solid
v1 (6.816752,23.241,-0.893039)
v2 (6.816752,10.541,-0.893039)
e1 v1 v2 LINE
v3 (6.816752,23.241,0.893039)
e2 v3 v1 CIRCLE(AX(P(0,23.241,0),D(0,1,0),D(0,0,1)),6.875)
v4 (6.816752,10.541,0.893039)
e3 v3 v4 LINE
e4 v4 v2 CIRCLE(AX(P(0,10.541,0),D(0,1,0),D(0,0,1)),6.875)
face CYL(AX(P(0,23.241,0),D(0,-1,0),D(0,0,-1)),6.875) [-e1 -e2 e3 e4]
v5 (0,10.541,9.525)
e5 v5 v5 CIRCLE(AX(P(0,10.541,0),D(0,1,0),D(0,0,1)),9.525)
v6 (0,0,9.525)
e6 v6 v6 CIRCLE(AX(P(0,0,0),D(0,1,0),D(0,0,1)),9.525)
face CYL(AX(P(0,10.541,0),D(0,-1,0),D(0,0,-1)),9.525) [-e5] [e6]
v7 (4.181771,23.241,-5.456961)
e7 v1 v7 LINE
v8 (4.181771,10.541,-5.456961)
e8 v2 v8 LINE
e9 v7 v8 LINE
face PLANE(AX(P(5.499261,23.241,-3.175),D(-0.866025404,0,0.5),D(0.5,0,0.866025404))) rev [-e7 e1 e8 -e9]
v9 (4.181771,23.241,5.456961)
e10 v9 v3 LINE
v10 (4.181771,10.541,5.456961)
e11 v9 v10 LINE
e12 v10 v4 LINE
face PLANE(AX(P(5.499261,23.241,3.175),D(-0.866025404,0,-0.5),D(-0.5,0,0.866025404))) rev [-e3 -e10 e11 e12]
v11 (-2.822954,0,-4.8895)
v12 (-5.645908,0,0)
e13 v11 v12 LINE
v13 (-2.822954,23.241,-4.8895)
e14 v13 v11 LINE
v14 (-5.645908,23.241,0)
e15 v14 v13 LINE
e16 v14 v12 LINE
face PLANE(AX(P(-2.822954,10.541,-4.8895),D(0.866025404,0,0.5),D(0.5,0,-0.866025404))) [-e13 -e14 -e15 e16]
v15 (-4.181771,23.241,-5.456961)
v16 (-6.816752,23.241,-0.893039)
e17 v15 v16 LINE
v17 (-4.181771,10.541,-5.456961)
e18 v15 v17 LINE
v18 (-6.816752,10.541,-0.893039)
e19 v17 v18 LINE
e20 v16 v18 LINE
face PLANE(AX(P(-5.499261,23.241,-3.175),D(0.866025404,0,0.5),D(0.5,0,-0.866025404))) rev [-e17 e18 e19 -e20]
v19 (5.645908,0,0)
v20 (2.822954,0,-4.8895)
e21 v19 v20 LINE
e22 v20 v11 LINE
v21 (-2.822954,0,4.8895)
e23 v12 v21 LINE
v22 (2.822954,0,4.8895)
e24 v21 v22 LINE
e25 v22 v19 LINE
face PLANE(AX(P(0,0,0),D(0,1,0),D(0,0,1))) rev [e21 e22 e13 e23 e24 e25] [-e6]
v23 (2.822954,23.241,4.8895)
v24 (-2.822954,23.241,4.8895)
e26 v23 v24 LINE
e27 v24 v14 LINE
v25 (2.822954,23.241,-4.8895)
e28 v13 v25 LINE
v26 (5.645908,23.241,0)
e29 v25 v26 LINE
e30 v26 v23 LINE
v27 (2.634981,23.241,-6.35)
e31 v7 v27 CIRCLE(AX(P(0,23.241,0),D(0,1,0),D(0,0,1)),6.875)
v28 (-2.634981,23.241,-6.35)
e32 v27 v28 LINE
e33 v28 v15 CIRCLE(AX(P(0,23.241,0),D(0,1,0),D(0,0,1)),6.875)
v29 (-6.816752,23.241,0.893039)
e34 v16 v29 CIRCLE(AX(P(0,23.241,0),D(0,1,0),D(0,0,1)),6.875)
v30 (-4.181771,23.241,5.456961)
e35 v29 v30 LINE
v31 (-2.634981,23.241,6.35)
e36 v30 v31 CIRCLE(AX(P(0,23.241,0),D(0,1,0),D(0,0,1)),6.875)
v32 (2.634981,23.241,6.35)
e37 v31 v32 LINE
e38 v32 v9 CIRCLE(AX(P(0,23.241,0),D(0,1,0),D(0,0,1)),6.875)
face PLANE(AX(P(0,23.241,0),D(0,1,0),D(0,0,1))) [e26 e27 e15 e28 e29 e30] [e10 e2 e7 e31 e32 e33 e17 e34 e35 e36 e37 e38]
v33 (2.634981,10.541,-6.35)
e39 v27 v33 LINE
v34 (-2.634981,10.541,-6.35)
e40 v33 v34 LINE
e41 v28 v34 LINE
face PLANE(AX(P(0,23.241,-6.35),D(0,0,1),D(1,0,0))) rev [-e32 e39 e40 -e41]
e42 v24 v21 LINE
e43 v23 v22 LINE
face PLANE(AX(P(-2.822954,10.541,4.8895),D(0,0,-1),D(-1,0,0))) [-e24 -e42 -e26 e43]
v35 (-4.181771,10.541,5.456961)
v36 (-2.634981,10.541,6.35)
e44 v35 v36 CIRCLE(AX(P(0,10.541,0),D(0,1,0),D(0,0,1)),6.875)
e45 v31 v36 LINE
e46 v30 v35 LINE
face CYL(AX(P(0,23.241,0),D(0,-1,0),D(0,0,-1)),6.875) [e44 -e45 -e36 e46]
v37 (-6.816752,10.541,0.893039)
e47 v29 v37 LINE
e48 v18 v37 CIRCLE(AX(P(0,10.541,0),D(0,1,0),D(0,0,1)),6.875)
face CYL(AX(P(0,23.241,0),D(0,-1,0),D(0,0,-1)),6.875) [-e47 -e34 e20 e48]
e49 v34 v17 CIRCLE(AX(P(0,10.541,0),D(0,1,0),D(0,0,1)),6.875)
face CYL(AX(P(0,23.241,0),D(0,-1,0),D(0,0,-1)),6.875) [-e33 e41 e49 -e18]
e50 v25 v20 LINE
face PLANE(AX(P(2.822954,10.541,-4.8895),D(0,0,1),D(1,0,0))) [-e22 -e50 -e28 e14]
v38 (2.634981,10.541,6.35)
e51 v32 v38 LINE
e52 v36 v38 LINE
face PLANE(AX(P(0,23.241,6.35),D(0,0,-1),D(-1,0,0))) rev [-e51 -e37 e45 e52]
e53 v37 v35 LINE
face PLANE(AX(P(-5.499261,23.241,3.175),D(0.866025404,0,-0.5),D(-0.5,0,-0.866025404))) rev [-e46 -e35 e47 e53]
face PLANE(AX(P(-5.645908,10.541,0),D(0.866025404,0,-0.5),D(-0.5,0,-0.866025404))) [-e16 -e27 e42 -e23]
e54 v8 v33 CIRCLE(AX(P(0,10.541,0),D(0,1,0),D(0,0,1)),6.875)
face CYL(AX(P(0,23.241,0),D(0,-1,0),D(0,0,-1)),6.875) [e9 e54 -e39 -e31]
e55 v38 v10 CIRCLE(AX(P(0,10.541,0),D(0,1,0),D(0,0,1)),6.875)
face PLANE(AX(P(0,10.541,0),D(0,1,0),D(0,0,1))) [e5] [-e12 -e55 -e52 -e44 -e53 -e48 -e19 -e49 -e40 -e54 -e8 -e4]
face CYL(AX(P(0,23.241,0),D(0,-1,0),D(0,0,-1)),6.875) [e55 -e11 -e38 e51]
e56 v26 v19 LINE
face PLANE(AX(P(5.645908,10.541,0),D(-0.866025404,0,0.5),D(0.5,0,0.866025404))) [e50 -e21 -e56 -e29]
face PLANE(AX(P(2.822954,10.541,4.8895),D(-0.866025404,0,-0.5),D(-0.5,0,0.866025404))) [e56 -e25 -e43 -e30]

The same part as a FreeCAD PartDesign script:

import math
import FreeCAD as App
import Part
import Sketcher
from FreeCAD import Vector
Q = App.Units.Quantity

doc = App.newDocument("Part")
params = doc.addObject("Spreadsheet::Sheet", "Params")
for row, (alias, value) in enumerate([
    ("sketch1_diameter", "0.75 in"),
    ("pad1_length", "0.415 in"),
    ("pad2_length", "0.5 in"),
], start=1):
    params.set(f"A{row}", alias)
    params.set(f"B{row}", "=" + value)
    params.setAlias(f"B{row}", alias)

body = doc.addObject("PartDesign::Body", "Body")

sketch1 = body.newObject("Sketcher::SketchObject", "Sketch")
sketch1.AttachmentSupport = (doc.getObject("XZ_Plane"), [""])
sketch1.MapMode = "FlatFace"
sketch1.addGeometry([
    Part.Circle(Vector(0, 0, 0), Vector(0, 0, 1), 10),
    Part.LineSegment(Vector(3, -5, 0), Vector(6, 0, 0)),
    Part.LineSegment(Vector(6, 0, 0), Vector(3, 5, 0)),
    Part.LineSegment(Vector(3, 5, 0), Vector(-3, 5, 0)),
    Part.LineSegment(Vector(-3, 5, 0), Vector(-6, 0, 0)),
    Part.LineSegment(Vector(-6, 0, 0), Vector(-3, -5, 0)),
    Part.LineSegment(Vector(-3, -5, 0), Vector(3, -5, 0)),
], False)
sketch1.addConstraint([
    Sketcher.Constraint("Coincident", 1, 2, 2, 1),
    Sketcher.Constraint("Coincident", 2, 2, 3, 1),
    Sketcher.Constraint("Coincident", 3, 2, 4, 1),
    Sketcher.Constraint("Coincident", 4, 2, 5, 1),
    Sketcher.Constraint("Coincident", 5, 2, 6, 1),
    Sketcher.Constraint("Coincident", 6, 2, 1, 1),
    Sketcher.Constraint("Horizontal", 3),
    Sketcher.Constraint("Horizontal", 6),
    Sketcher.Constraint("Coincident", 0, 3, -1, 1),
    Sketcher.Constraint("Symmetric", 1, 2, 4, 2, -1, 1),
    Sketcher.Constraint("Symmetric", 2, 2, 5, 2, -1, 1),
    Sketcher.Constraint("PointOnObject", 1, 2, -1),
    Sketcher.Constraint("Parallel", 1, 4),
    Sketcher.Constraint("Vertical", 3, 2, 5, 2),
    Sketcher.Constraint("Diameter", 0, Q("0.75 in")),
    Sketcher.Constraint("Angle", 1, Q("60 deg")),
    Sketcher.Constraint("DistanceY", 5, 2, 3, 2, Q("0.385 in")),
    Sketcher.Constraint("DistanceX", 3, 2, 3, 1, 5.645908),
])
sketch1.setExpression("Constraints[14]", "Params.sketch1_diameter")
pad1 = body.newObject("PartDesign::Pad", "Pad")
pad1.Profile = sketch1
pad1.setExpression("Length", "Params.pad1_length")
pad1.Reversed = True

sketch2 = body.newObject("Sketcher::SketchObject", "Sketch001")
sketch2.AttachmentSupport = (doc.getObject("XZ_Plane"), [""])
sketch2.MapMode = "FlatFace"
sketch2.AttachmentOffset = App.Placement(Vector(0, 0, -0.415 * 25.4), App.Rotation())
sketch2.addGeometry([
    Part.LineSegment(Vector(4.2, 5.5, 0), Vector(6.8, 0.9, 0)),
    Part.ArcOfCircle(Part.Circle(Vector(0, 0, 0), Vector(0, 0, 1), 6.9), math.radians(-7.46), math.radians(7.46)),
    Part.LineSegment(Vector(6.8, -0.9, 0), Vector(4.2, -5.5, 0)),
    Part.ArcOfCircle(Part.Circle(Vector(0, 0, 0), Vector(0, 0, 1), 6.9), math.radians(-67.46), math.radians(-52.54)),
    Part.LineSegment(Vector(2.6, -6.3, 0), Vector(-2.6, -6.3, 0)),
    Part.ArcOfCircle(Part.Circle(Vector(0, 0, 0), Vector(0, 0, 1), 6.9), math.radians(-127.46), math.radians(-112.54)),
    Part.LineSegment(Vector(-4.2, -5.5, 0), Vector(-6.8, -0.9, 0)),
    Part.ArcOfCircle(Part.Circle(Vector(0, 0, 0), Vector(0, 0, 1), 6.9), math.radians(172.54), math.radians(187.46)),
    Part.LineSegment(Vector(-6.8, 0.9, 0), Vector(-4.2, 5.5, 0)),
    Part.ArcOfCircle(Part.Circle(Vector(0, 0, 0), Vector(0, 0, 1), 6.9), math.radians(112.54), math.radians(127.46)),
    Part.LineSegment(Vector(-2.6, 6.3, 0), Vector(2.6, 6.3, 0)),
    Part.ArcOfCircle(Part.Circle(Vector(0, 0, 0), Vector(0, 0, 1), 6.9), math.radians(52.54), math.radians(67.46)),
    Part.LineSegment(Vector(-5.6, 0, 0), Vector(-2.8, -4.9, 0)),
    Part.LineSegment(Vector(-2.8, -4.9, 0), Vector(2.8, -4.9, 0)),
    Part.LineSegment(Vector(2.8, -4.9, 0), Vector(5.6, 0, 0)),
    Part.LineSegment(Vector(5.6, 0, 0), Vector(2.8, 4.9, 0)),
    Part.LineSegment(Vector(2.8, 4.9, 0), Vector(-2.8, 4.9, 0)),
    Part.LineSegment(Vector(-2.8, 4.9, 0), Vector(-5.6, 0, 0)),
], False)
sketch2.addConstraint([
    Sketcher.Constraint("Coincident", 0, 2, 1, 2),
    Sketcher.Constraint("Coincident", 1, 1, 2, 1),
    Sketcher.Constraint("Coincident", 2, 2, 3, 2),
    Sketcher.Constraint("Coincident", 3, 1, 4, 1),
    Sketcher.Constraint("Coincident", 4, 2, 5, 2),
    Sketcher.Constraint("Coincident", 5, 1, 6, 1),
    Sketcher.Constraint("Coincident", 6, 2, 7, 2),
    Sketcher.Constraint("Coincident", 7, 1, 8, 1),
    Sketcher.Constraint("Coincident", 8, 2, 9, 2),
    Sketcher.Constraint("Coincident", 9, 1, 10, 1),
    Sketcher.Constraint("Coincident", 10, 2, 11, 2),
    Sketcher.Constraint("Coincident", 11, 1, 0, 1),
    Sketcher.Constraint("Coincident", 12, 2, 13, 1),
    Sketcher.Constraint("Coincident", 13, 2, 14, 1),
    Sketcher.Constraint("Coincident", 14, 2, 15, 1),
    Sketcher.Constraint("Coincident", 15, 2, 16, 1),
    Sketcher.Constraint("Coincident", 16, 2, 17, 1),
    Sketcher.Constraint("Coincident", 17, 2, 12, 1),
    Sketcher.Constraint("Horizontal", 4),
    Sketcher.Constraint("Horizontal", 10),
    Sketcher.Constraint("Horizontal", 13),
    Sketcher.Constraint("Horizontal", 16),
    Sketcher.Constraint("Coincident", 1, 3, -1, 1),
    Sketcher.Constraint("Coincident", 3, 3, -1, 1),
    Sketcher.Constraint("Coincident", 5, 3, -1, 1),
    Sketcher.Constraint("Coincident", 7, 3, -1, 1),
    Sketcher.Constraint("Coincident", 9, 3, -1, 1),
    Sketcher.Constraint("Coincident", 11, 3, -1, 1),
    Sketcher.Constraint("Equal", 1, 3),
    Sketcher.Constraint("Equal", 3, 5),
    Sketcher.Constraint("Equal", 5, 7),
    Sketcher.Constraint("Equal", 7, 9),
    Sketcher.Constraint("Equal", 9, 11),
    Sketcher.Constraint("Symmetric", 12, 2, 15, 2, -1, 1),
    Sketcher.Constraint("Symmetric", 14, 2, 17, 2, -1, 1),
    Sketcher.Constraint("PointOnObject", 14, 2, -1),
    Sketcher.Constraint("Parallel", 0, 6),
    Sketcher.Constraint("Parallel", 2, 8),
    Sketcher.Constraint("Parallel", 6, 12),
    Sketcher.Constraint("Parallel", 8, 14),
    Sketcher.Constraint("Parallel", 14, 17),
    Sketcher.Constraint("Horizontal", 2, 2, 5, 1),
    Sketcher.Constraint("Horizontal", 1, 1, 6, 2),
    Sketcher.Constraint("Horizontal", 0, 2, 7, 1),
    Sketcher.Constraint("Vertical", 0, 2, 1, 1),
    Sketcher.Constraint("Vertical", 4, 2, 9, 1),
    Sketcher.Constraint("Angle", 0, Q("-60 deg")),
    Sketcher.Constraint("DistanceY", 3, 1, -1, 1, Q("0.25 in")),
    Sketcher.Constraint("Radius", 1, 6.875),
    Sketcher.Constraint("DistanceY", 2, 2, 0, 2, Q("0.25 in")),
    Sketcher.Constraint("DistanceY", 12, 2, -1, 1, Q("0.1925 in")),
    Sketcher.Constraint("DistanceX", 13, 1, 13, 2, 5.645908),
])
pad2 = body.newObject("PartDesign::Pad", "Pad001")
pad2.Profile = sketch2
pad2.setExpression("Length", "Params.pad2_length")
pad2.Reversed = True

doc.recompute()
